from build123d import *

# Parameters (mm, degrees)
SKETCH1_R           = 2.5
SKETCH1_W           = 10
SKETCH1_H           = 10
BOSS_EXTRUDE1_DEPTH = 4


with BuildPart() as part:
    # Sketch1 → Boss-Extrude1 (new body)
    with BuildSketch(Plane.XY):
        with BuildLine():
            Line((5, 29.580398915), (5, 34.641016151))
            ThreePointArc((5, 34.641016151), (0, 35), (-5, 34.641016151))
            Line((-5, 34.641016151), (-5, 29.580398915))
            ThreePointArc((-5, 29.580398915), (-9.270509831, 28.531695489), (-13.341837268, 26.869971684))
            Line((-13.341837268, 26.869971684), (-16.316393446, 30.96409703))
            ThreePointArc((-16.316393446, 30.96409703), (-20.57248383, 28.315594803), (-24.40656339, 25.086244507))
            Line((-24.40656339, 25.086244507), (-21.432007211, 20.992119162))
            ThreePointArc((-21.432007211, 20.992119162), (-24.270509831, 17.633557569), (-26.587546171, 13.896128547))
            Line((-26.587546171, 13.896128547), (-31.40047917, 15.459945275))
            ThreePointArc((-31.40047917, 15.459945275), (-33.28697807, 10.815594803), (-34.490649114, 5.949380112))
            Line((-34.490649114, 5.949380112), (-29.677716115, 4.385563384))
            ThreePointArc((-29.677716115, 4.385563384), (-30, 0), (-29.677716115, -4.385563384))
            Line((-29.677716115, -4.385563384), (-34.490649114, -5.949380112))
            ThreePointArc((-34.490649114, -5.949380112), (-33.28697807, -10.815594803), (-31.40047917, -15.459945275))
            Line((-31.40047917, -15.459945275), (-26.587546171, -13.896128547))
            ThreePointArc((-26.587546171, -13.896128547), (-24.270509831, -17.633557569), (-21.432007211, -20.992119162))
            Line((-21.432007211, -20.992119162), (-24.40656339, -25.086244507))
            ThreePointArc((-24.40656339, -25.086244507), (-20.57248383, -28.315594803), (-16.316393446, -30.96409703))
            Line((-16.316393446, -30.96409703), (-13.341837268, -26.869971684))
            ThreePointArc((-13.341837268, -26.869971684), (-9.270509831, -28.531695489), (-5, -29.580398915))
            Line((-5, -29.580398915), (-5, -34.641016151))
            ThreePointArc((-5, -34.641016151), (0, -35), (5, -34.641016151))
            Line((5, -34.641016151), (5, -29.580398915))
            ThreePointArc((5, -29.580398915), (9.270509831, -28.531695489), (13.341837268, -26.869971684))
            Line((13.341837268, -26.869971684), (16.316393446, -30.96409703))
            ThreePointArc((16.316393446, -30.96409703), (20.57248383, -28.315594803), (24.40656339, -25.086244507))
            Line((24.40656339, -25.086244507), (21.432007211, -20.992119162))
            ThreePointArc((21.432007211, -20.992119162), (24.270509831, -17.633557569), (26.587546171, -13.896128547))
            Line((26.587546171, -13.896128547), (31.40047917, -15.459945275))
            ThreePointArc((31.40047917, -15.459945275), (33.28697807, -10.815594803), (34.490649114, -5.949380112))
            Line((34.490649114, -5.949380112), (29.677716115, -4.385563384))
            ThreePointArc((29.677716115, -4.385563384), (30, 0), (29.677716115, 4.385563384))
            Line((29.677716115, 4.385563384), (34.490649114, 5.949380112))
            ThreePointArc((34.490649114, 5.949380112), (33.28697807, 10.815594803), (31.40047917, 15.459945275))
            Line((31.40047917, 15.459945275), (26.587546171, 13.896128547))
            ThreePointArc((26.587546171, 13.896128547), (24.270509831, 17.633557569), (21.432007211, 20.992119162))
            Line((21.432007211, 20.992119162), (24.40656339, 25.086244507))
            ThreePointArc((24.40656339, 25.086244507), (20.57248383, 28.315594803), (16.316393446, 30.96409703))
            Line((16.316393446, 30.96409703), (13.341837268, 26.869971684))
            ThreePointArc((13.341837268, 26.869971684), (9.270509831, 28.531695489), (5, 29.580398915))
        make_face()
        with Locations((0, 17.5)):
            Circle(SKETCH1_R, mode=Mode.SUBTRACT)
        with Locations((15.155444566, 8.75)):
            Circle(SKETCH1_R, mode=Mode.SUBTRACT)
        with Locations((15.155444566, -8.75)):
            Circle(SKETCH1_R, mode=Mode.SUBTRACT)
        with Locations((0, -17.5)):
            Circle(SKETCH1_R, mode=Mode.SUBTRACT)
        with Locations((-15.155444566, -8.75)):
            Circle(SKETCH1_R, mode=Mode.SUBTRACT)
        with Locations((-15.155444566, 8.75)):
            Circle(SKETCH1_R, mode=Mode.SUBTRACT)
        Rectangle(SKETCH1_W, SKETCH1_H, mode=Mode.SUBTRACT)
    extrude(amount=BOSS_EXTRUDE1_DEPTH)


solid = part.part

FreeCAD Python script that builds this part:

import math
import FreeCAD as App
import Part
import Sketcher
Q = App.Units.Quantity


def add_polygon(sketch, points):
    """Adds a closed chain of lines whose ends are joined by coincident constraints."""
    first, n = sketch.GeometryCount, len(points)
    for a, b in zip(points, points[1:] + points[:1]):
        sketch.addGeometry(Part.LineSegment(App.Vector(*a, 0), App.Vector(*b, 0)), False)
    for i in range(n):
        sketch.addConstraint(Sketcher.Constraint("Coincident", first + i, 2, first + (i + 1) % n, 1))

doc = App.newDocument("Part")
body = doc.addObject("PartDesign::Body", "Body")

# Sketch on XY plane
sketch1 = body.newObject("Sketcher::SketchObject", "Sketch")
sketch1.AttachmentSupport = (doc.getObject("XY_Plane"), [""])
sketch1.MapMode = "FlatFace"
sketch1.addGeometry(Part.LineSegment(App.Vector(5, 29.6, 0), App.Vector(5, 34.6, 0)), False)  # 0
sketch1.addGeometry(Part.ArcOfCircle(Part.Circle(App.Vector(0, 0, 0), App.Vector(0, 0, 1), 35), math.radians(81.79), math.radians(98.21)), False)  # 1
sketch1.addGeometry(Part.LineSegment(App.Vector(-5, 34.6, 0), App.Vector(-5, 29.6, 0)), False)  # 2
sketch1.addGeometry(Part.ArcOfCircle(Part.Circle(App.Vector(0, 0, 0), App.Vector(0, 0, 1), 30), math.radians(99.59), math.radians(116.41)), False)  # 3
sketch1.addGeometry(Part.LineSegment(App.Vector(-13.3, 26.9, 0), App.Vector(-16.3, 31, 0)), False)  # 4
sketch1.addGeometry(Part.ArcOfCircle(Part.Circle(App.Vector(0, 0, 0), App.Vector(0, 0, 1), 35), math.radians(117.79), math.radians(134.21)), False)  # 5
sketch1.addGeometry(Part.LineSegment(App.Vector(-24.4, 25.1, 0), App.Vector(-21.4, 21, 0)), False)  # 6
sketch1.addGeometry(Part.ArcOfCircle(Part.Circle(App.Vector(0, 0, 0), App.Vector(0, 0, 1), 30), math.radians(135.59), math.radians(152.41)), False)  # 7
sketch1.addGeometry(Part.LineSegment(App.Vector(-26.6, 13.9, 0), App.Vector(-31.4, 15.5, 0)), False)  # 8
sketch1.addGeometry(Part.ArcOfCircle(Part.Circle(App.Vector(0, 0, 0), App.Vector(0, 0, 1), 35), math.radians(153.79), math.radians(170.21)), False)  # 9
sketch1.addGeometry(Part.LineSegment(App.Vector(-34.5, 5.9, 0), App.Vector(-29.7, 4.4, 0)), False)  # 10
sketch1.addGeometry(Part.ArcOfCircle(Part.Circle(App.Vector(0, 0, 0), App.Vector(0, 0, 1), 30), math.radians(171.59), math.radians(188.41)), False)  # 11
sketch1.addGeometry(Part.LineSegment(App.Vector(-29.7, -4.4, 0), App.Vector(-34.5, -5.9, 0)), False)  # 12
sketch1.addGeometry(Part.ArcOfCircle(Part.Circle(App.Vector(0, 0, 0), App.Vector(0, 0, 1), 35), math.radians(-170.21), math.radians(-153.79)), False)  # 13
sketch1.addGeometry(Part.LineSegment(App.Vector(-31.4, -15.5, 0), App.Vector(-26.6, -13.9, 0)), False)  # 14
sketch1.addGeometry(Part.ArcOfCircle(Part.Circle(App.Vector(0, 0, 0), App.Vector(0, 0, 1), 30), math.radians(-152.41), math.radians(-135.59)), False)  # 15
sketch1.addGeometry(Part.LineSegment(App.Vector(-21.4, -21, 0), App.Vector(-24.4, -25.1, 0)), False)  # 16
sketch1.addGeometry(Part.ArcOfCircle(Part.Circle(App.Vector(0, 0, 0), App.Vector(0, 0, 1), 35), math.radians(-134.21), math.radians(-117.79)), False)  # 17
sketch1.addGeometry(Part.LineSegment(App.Vector(-16.3, -31, 0), App.Vector(-13.3, -26.9, 0)), False)  # 18
sketch1.addGeometry(Part.ArcOfCircle(Part.Circle(App.Vector(0, 0, 0), App.Vector(0, 0, 1), 30), math.radians(-116.41), math.radians(-99.59)), False)  # 19
sketch1.addGeometry(Part.LineSegment(App.Vector(-5, -29.6, 0), App.Vector(-5, -34.6, 0)), False)  # 20
sketch1.addGeometry(Part.ArcOfCircle(Part.Circle(App.Vector(0, 0, 0), App.Vector(0, 0, 1), 35), math.radians(-98.21), math.radians(-81.79)), False)  # 21
sketch1.addGeometry(Part.LineSegment(App.Vector(5, -34.6, 0), App.Vector(5, -29.6, 0)), False)  # 22
sketch1.addGeometry(Part.ArcOfCircle(Part.Circle(App.Vector(0, 0, 0), App.Vector(0, 0, 1), 30), math.radians(-80.41), math.radians(-63.59)), False)  # 23
sketch1.addGeometry(Part.LineSegment(App.Vector(13.3, -26.9, 0), App.Vector(16.3, -31, 0)), False)  # 24
sketch1.addGeometry(Part.ArcOfCircle(Part.Circle(App.Vector(0, 0, 0), App.Vector(0, 0, 1), 35), math.radians(-62.21), math.radians(-45.79)), False)  # 25
sketch1.addGeometry(Part.LineSegment(App.Vector(24.4, -25.1, 0), App.Vector(21.4, -21, 0)), False)  # 26
sketch1.addGeometry(Part.ArcOfCircle(Part.Circle(App.Vector(0, 0, 0), App.Vector(0, 0, 1), 30), math.radians(-44.41), math.radians(-27.59)), False)  # 27
sketch1.addGeometry(Part.LineSegment(App.Vector(26.6, -13.9, 0), App.Vector(31.4, -15.5, 0)), False)  # 28
sketch1.addGeometry(Part.ArcOfCircle(Part.Circle(App.Vector(0, 0, 0), App.Vector(0, 0, 1), 35), math.radians(-26.21), math.radians(-9.79)), False)  # 29
sketch1.addGeometry(Part.LineSegment(App.Vector(34.5, -5.9, 0), App.Vector(29.7, -4.4, 0)), False)  # 30
sketch1.addGeometry(Part.ArcOfCircle(Part.Circle(App.Vector(0, 0, 0), App.Vector(0, 0, 1), 30), math.radians(-8.41), math.radians(8.41)), False)  # 31
sketch1.addGeometry(Part.LineSegment(App.Vector(29.7, 4.4, 0), App.Vector(34.5, 5.9, 0)), False)  # 32
sketch1.addGeometry(Part.ArcOfCircle(Part.Circle(App.Vector(0, 0, 0), App.Vector(0, 0, 1), 35), math.radians(9.79), math.radians(26.21)), False)  # 33
sketch1.addGeometry(Part.LineSegment(App.Vector(31.4, 15.5, 0), App.Vector(26.6, 13.9, 0)), False)  # 34
sketch1.addGeometry(Part.ArcOfCircle(Part.Circle(App.Vector(0, 0, 0), App.Vector(0, 0, 1), 30), math.radians(27.59), math.radians(44.41)), False)  # 35
sketch1.addGeometry(Part.LineSegment(App.Vector(21.4, 21, 0), App.Vector(24.4, 25.1, 0)), False)  # 36
sketch1.addGeometry(Part.ArcOfCircle(Part.Circle(App.Vector(0, 0, 0), App.Vector(0, 0, 1), 35), math.radians(45.79), math.radians(62.21)), False)  # 37
sketch1.addGeometry(Part.LineSegment(App.Vector(16.3, 31, 0), App.Vector(13.3, 26.9, 0)), False)  # 38
sketch1.addGeometry(Part.ArcOfCircle(Part.Circle(App.Vector(0, 0, 0), App.Vector(0, 0, 1), 30), math.radians(63.59), math.radians(80.41)), False)  # 39
sketch1.addGeometry(Part.Circle(App.Vector(-15.2, -8.8, 0), App.Vector(0, 0, 1), 2.5), False)  # 40
sketch1.addGeometry(Part.Circle(App.Vector(0, -17.5, 0), App.Vector(0, 0, 1), 2.5), False)  # 41
sketch1.addGeometry(Part.Circle(App.Vector(15.2, -8.8, 0), App.Vector(0, 0, 1), 2.5), False)  # 42
sketch1.addGeometry(Part.Circle(App.Vector(-15.2, 8.8, 0), App.Vector(0, 0, 1), 2.5), False)  # 43
add_polygon(sketch1, [(5, -5), (-5, -5), (-5, 5), (5, 5)])  # lines 44-47
sketch1.addGeometry(Part.Circle(App.Vector(15.2, 8.8, 0), App.Vector(0, 0, 1), 2.5), False)  # 48
sketch1.addGeometry(Part.Circle(App.Vector(0, 17.5, 0), App.Vector(0, 0, 1), 2.5), False)  # 49
sketch1.addConstraint([
    Sketcher.Constraint("Coincident", 0, 2, 1, 1),
    Sketcher.Constraint("Coincident", 1, 2, 2, 1),
    Sketcher.Constraint("Coincident", 2, 2, 3, 1),
    Sketcher.Constraint("Coincident", 3, 2, 4, 1),
    Sketcher.Constraint("Coincident", 4, 2, 5, 1),
    Sketcher.Constraint("Coincident", 5, 2, 6, 1),
    Sketcher.Constraint("Coincident", 6, 2, 7, 1),
    Sketcher.Constraint("Coincident", 7, 2, 8, 1),
    Sketcher.Constraint("Coincident", 8, 2, 9, 1),
    Sketcher.Constraint("Coincident", 9, 2, 10, 1),
    Sketcher.Constraint("Coincident", 10, 2, 11, 1),
    Sketcher.Constraint("Coincident", 11, 2, 12, 1),
    Sketcher.Constraint("Coincident", 12, 2, 13, 1),
    Sketcher.Constraint("Coincident", 13, 2, 14, 1),
    Sketcher.Constraint("Coincident", 14, 2, 15, 1),
    Sketcher.Constraint("Coincident", 15, 2, 16, 1),
    Sketcher.Constraint("Coincident", 16, 2, 17, 1),
    Sketcher.Constraint("Coincident", 17, 2, 18, 1),
    Sketcher.Constraint("Coincident", 18, 2, 19, 1),
    Sketcher.Constraint("Coincident", 19, 2, 20, 1),
    Sketcher.Constraint("Coincident", 20, 2, 21, 1),
    Sketcher.Constraint("Coincident", 21, 2, 22, 1),
    Sketcher.Constraint("Coincident", 22, 2, 23, 1),
    Sketcher.Constraint("Coincident", 23, 2, 24, 1),
    Sketcher.Constraint("Coincident", 24, 2, 25, 1),
    Sketcher.Constraint("Coincident", 25, 2, 26, 1),
    Sketcher.Constraint("Coincident", 26, 2, 27, 1),
    Sketcher.Constraint("Coincident", 27, 2, 28, 1),
    Sketcher.Constraint("Coincident", 28, 2, 29, 1),
    Sketcher.Constraint("Coincident", 29, 2, 30, 1),
    Sketcher.Constraint("Coincident", 30, 2, 31, 1),
    Sketcher.Constraint("Coincident", 31, 2, 32, 1),
    Sketcher.Constraint("Coincident", 32, 2, 33, 1),
    Sketcher.Constraint("Coincident", 33, 2, 34, 1),
    Sketcher.Constraint("Coincident", 34, 2, 35, 1),
    Sketcher.Constraint("Coincident", 35, 2, 36, 1),
    Sketcher.Constraint("Coincident", 36, 2, 37, 1),
    Sketcher.Constraint("Coincident", 37, 2, 38, 1),
    Sketcher.Constraint("Coincident", 38, 2, 39, 1),
    Sketcher.Constraint("Coincident", 39, 2, 0, 1),
    Sketcher.Constraint("Vertical", 0),
    Sketcher.Constraint("Vertical", 2),
    Sketcher.Constraint("Vertical", 20),
    Sketcher.Constraint("Vertical", 22),
    Sketcher.Constraint("Horizontal", 44),
    Sketcher.Constraint("Vertical", 45),
    Sketcher.Constraint("Horizontal", 46),
    Sketcher.Constraint("Vertical", 47),
    Sketcher.Constraint("Coincident", 1, 3, -1, 1),
    Sketcher.Constraint("Coincident", 3, 3, -1, 1),
    Sketcher.Constraint("Coincident", 5, 3, -1, 1),
    Sketcher.Constraint("Coincident", 7, 3, -1, 1),
    Sketcher.Constraint("Coincident", 9, 3, -1, 1),
    Sketcher.Constraint("Coincident", 11, 3, -1, 1),
    Sketcher.Constraint("Coincident", 13, 3, -1, 1),
    Sketcher.Constraint("Coincident", 15, 3, -1, 1),
    Sketcher.Constraint("Coincident", 17, 3, -1, 1),
    Sketcher.Constraint("Coincident", 19, 3, -1, 1),
    Sketcher.Constraint("Coincident", 21, 3, -1, 1),
    Sketcher.Constraint("Coincident", 23, 3, -1, 1),
    Sketcher.Constraint("Coincident", 25, 3, -1, 1),
    Sketcher.Constraint("Coincident", 27, 3, -1, 1),
    Sketcher.Constraint("Coincident", 29, 3, -1, 1),
    Sketcher.Constraint("Coincident", 31, 3, -1, 1),
    Sketcher.Constraint("Coincident", 33, 3, -1, 1),
    Sketcher.Constraint("Coincident", 35, 3, -1, 1),
    Sketcher.Constraint("Coincident", 37, 3, -1, 1),
    Sketcher.Constraint("Coincident", 39, 3, -1, 1),
    Sketcher.Constraint("Equal", 1, 5),
    Sketcher.Constraint("Equal", 3, 7),
    Sketcher.Constraint("Equal", 5, 9),
    Sketcher.Constraint("Equal", 7, 11),
    Sketcher.Constraint("Equal", 9, 13),
    Sketcher.Constraint("Equal", 11, 15),
    Sketcher.Constraint("Equal", 13, 17),
    Sketcher.Constraint("Equal", 15, 19),
    Sketcher.Constraint("Equal", 17, 21),
    Sketcher.Constraint("Equal", 19, 23),
    Sketcher.Constraint("Equal", 21, 25),
    Sketcher.Constraint("Equal", 23, 27),
    Sketcher.Constraint("Equal", 25, 29),
    Sketcher.Constraint("Equal", 27, 31),
    Sketcher.Constraint("Equal", 29, 33),
    Sketcher.Constraint("Equal", 31, 35),
    Sketcher.Constraint("Equal", 33, 37),
    Sketcher.Constraint("Equal", 35, 39),
    Sketcher.Constraint("Equal", 40, 41),
    Sketcher.Constraint("Equal", 41, 42),
    Sketcher.Constraint("Equal", 42, 43),
    Sketcher.Constraint("Equal", 43, 48),
    Sketcher.Constraint("Equal", 48, 49),
    Sketcher.Constraint("Symmetric", 42, 3, 43, 3, -1, 1),
    Sketcher.Constraint("Symmetric", 40, 3, 48, 3, -1, 1),
    Sketcher.Constraint("Symmetric", 41, 3, 49, 3, -1, 1),
    Sketcher.Constraint("Symmetric", 44, 2, 46, 2, -1, 1),
    Sketcher.Constraint("Symmetric", 40, 3, 42, 3, -2),
    Sketcher.Constraint("PointOnObject", 41, 3, -2),
    Sketcher.Constraint("Parallel", 4, 6),
    Sketcher.Constraint("Parallel", 8, 10),
    Sketcher.Constraint("Parallel", 12, 14),
    Sketcher.Constraint("Parallel", 16, 18),
    Sketcher.Constraint("Parallel", 6, 24),
    Sketcher.Constraint("Parallel", 24, 26),
    Sketcher.Constraint("Parallel", 10, 28),
    Sketcher.Constraint("Parallel", 28, 30),
    Sketcher.Constraint("Parallel", 14, 32),
    Sketcher.Constraint("Parallel", 32, 34),
    Sketcher.Constraint("Parallel", 18, 36),
    Sketcher.Constraint("Parallel", 36, 38),
    Sketcher.Constraint("Horizontal", 0, 2, 1, 2),
    Sketcher.Constraint("Horizontal", 20, 2, 21, 2),
    Sketcher.Constraint("Horizontal", 18, 2, 23, 2),
    Sketcher.Constraint("Horizontal", 17, 2, 24, 2),
    Sketcher.Constraint("Horizontal", 16, 2, 25, 2),
    Sketcher.Constraint("Horizontal", 14, 2, 27, 2),
    Sketcher.Constraint("Horizontal", 13, 2, 28, 2),
    Sketcher.Constraint("Horizontal", 12, 2, 29, 2),
    Sketcher.Constraint("Horizontal", 10, 2, 31, 2),
    Sketcher.Constraint("Horizontal", 8, 2, 33, 2),
    Sketcher.Constraint("Horizontal", 6, 2, 35, 2),
    Sketcher.Constraint("Horizontal", 4, 2, 37, 2),
    Sketcher.Constraint("Vertical", 10, 2, 11, 2),
    Sketcher.Constraint("Vertical", 8, 2, 13, 2),
    Sketcher.Constraint("Vertical", 6, 2, 15, 2),
    Sketcher.Constraint("Vertical", 4, 2, 17, 2),
    Sketcher.Constraint("Vertical", 2, 2, 19, 2),
    Sketcher.Constraint("Vertical", 20, 2, 44, 2),
    Sketcher.Constraint("Equal", 46, 45),
    Sketcher.Constraint("Equal", 4, 6),
    Sketcher.Constraint("Equal", 6, 8),
    Sketcher.Constraint("Equal", 8, 10),
    Sketcher.Constraint("Diameter", 40, 5.0),
    Sketcher.Constraint("Radius", 1, 35.0),
    Sketcher.Constraint("Radius", 3, 30.0),
    Sketcher.Constraint("DistanceX", 44, 2, 44, 1, 10.0),
    Sketcher.Constraint("Angle", 4, Q("126 deg")),
    Sketcher.Constraint("Angle", 8, Q("162 deg")),
    Sketcher.Constraint("DistanceY", 41, 3, -1, 1, 17.5),
    Sketcher.Constraint("DistanceY", 40, 3, -1, 1, 8.75),
    Sketcher.Constraint("DistanceY", -1, 1, 3, 2, 26.869972),
    Sketcher.Constraint("DistanceX", 40, 3, -1, 1, 15.155445),
])
pad1 = body.newObject("PartDesign::Pad", "Pad")
pad1.Profile = sketch1
pad1.Length = 4

doc.recompute()
